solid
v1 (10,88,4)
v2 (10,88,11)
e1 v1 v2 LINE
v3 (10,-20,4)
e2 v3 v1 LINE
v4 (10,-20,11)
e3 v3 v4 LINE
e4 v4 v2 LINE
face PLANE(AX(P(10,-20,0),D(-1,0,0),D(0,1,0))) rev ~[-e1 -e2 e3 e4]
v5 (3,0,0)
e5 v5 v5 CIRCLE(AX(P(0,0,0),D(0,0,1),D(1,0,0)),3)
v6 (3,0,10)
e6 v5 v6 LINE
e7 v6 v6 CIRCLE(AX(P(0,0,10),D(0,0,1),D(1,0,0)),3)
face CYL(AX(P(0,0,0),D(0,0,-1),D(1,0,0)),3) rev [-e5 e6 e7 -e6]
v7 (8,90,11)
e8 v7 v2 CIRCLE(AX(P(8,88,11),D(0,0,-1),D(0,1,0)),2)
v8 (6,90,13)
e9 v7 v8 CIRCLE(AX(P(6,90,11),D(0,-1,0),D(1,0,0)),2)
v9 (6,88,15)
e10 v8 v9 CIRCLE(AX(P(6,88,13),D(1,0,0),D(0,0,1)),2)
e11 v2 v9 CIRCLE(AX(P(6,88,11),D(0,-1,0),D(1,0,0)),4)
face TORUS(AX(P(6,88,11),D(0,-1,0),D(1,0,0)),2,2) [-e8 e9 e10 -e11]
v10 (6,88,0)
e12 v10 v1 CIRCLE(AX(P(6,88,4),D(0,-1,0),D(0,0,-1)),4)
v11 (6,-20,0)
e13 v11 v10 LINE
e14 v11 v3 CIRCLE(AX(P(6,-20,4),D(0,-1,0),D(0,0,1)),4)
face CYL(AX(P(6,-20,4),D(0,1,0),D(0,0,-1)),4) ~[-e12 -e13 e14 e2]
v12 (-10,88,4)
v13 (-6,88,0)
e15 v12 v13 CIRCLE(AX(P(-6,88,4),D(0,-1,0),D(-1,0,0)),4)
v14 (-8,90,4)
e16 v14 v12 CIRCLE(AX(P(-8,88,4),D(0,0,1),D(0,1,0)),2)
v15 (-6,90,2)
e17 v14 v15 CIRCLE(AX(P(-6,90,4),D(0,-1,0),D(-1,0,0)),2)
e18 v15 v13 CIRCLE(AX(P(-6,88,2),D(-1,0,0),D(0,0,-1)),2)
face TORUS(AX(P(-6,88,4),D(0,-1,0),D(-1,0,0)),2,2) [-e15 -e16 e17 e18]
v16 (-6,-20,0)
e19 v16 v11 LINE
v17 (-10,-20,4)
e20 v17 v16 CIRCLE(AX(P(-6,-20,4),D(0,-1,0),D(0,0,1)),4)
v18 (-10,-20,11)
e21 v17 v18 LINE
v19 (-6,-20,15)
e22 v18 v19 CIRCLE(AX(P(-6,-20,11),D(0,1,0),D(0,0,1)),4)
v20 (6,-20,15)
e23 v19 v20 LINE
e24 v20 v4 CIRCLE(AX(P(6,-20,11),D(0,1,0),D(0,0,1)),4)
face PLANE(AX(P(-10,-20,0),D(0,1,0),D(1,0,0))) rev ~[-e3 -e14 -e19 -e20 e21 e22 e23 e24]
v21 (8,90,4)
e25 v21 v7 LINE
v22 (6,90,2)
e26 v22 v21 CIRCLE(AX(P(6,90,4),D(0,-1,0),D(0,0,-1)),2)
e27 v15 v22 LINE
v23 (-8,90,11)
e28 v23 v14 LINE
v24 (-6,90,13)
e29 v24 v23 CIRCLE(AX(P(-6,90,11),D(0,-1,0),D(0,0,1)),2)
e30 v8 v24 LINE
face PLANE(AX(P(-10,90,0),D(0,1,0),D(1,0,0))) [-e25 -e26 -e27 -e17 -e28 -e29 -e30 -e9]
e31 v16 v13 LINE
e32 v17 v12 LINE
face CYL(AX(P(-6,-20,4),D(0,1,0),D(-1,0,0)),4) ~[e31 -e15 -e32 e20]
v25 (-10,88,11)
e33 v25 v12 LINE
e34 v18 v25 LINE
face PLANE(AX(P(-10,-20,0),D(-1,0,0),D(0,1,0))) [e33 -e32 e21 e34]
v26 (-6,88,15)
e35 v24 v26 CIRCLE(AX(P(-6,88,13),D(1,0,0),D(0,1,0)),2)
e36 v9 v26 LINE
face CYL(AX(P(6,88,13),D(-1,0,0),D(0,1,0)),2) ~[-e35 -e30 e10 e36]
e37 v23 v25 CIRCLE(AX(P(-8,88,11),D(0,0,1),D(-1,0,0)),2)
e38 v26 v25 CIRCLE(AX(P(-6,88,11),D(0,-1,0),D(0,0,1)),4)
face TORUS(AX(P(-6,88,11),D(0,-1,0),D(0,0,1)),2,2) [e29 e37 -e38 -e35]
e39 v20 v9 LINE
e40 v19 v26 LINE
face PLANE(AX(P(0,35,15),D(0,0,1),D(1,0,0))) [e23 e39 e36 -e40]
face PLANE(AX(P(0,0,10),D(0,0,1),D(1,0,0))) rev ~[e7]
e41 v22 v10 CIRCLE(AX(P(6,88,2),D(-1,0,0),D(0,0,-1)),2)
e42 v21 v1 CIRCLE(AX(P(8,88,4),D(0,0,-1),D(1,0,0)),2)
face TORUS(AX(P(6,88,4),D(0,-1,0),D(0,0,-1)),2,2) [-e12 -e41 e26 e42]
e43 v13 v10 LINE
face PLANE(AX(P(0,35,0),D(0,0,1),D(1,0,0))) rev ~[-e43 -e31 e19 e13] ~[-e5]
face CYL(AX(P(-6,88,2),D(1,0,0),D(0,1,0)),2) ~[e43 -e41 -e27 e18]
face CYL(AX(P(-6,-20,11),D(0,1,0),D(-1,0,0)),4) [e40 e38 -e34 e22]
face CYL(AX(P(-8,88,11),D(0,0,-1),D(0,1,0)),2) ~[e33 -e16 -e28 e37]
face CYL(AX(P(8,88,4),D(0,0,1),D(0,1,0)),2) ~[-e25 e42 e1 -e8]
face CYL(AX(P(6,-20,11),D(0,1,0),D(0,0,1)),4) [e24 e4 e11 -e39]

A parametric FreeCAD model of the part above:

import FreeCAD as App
import Part
import Sketcher

V = App.Vector
Q = App.Units.Quantity


def edges_at(feature, points):
    """Names of the edges that pass closest to the given points."""
    edges = feature.Shape.Edges
    near = lambda p: min(range(len(edges)), key=lambda i: edges[i].distToShape(Part.Vertex(*p))[0])
    return sorted({f"Edge{near(p) + 1}" for p in points})

doc = App.newDocument("Part")
body = doc.addObject("PartDesign::Body", "Body")

# Sketch on XY plane
sketch1 = doc.addObject("Sketcher::SketchObject", "Sketch")
body.addObject(sketch1)
sketch1.AttachmentSupport = (doc.XY_Plane, [""])
sketch1.MapMode = "FlatFace"
sketch1.addGeometry([
    Part.LineSegment(V(-10, 90, 0), V(-10, -20, 0)),
    Part.LineSegment(V(-10, -20, 0), V(10, -20, 0)),
    Part.LineSegment(V(10, -20, 0), V(10, 90, 0)),
    Part.LineSegment(V(10, 90, 0), V(-10, 90, 0)),
], False)
sketch1.addConstraint([
    Sketcher.Constraint("Coincident", 0, 2, 1, 1),
    Sketcher.Constraint("Coincident", 1, 2, 2, 1),
    Sketcher.Constraint("Coincident", 2, 2, 3, 1),
    Sketcher.Constraint("Coincident", 3, 2, 0, 1),
    Sketcher.Constraint("Vertical", 0),
    Sketcher.Constraint("Horizontal", 1),
    Sketcher.Constraint("Vertical", 2),
    Sketcher.Constraint("Horizontal", 3),
    Sketcher.Constraint("DistanceX", 1, 1, 1, 2, Q("20 mm")),
    Sketcher.Constraint("DistanceY", 0, 2, 0, 1, Q("110 mm")),
    Sketcher.Constraint("DistanceX", 0, 2, -1, 1, Q("10 mm")),
    Sketcher.Constraint("DistanceY", 0, 2, -1, 1, Q("20 mm")),
])
pad1 = doc.addObject("PartDesign::Pad", "Pad")
body.addObject(pad1)
pad1.Profile = sketch1
pad1.Length = 15

# Sketch on XY plane
sketch2 = doc.addObject("Sketcher::SketchObject", "Sketch001")
body.addObject(sketch2)
sketch2.AttachmentSupport = (doc.XY_Plane, [""])
sketch2.MapMode = "FlatFace"
sketch2.addGeometry(Part.Circle(V(0, 0, 0), V(0, 0, 1), 3), False)
sketch2.addConstraint([
    Sketcher.Constraint("Coincident", 0, 3, -1, 1),
    Sketcher.Constraint("Diameter", 0, Q("6 mm")),
])
pocket1 = doc.addObject("PartDesign::Pocket", "Pocket")
body.addObject(pocket1)
pocket1.Profile = sketch2
pocket1.Length = 10
pocket1.Reversed = True
doc.recompute()

fillet = doc.addObject("PartDesign::Fillet", "Fillet")
body.addObject(fillet)
fillet.Base = (pocket1, edges_at(pocket1, [
    (10, 35, 15),
    (-10, 35, 15),
    (10, 35, 0),
    (-10, 35, 0),
]))
fillet.Radius = 4
doc.recompute()

fillet2 = doc.addObject("PartDesign::Fillet", "Fillet001")
body.addObject(fillet2)
fillet2.Base = (fillet, edges_at(fillet, [(8.828, 90, 1.172)]))
fillet2.Radius = 2

doc.recompute()
